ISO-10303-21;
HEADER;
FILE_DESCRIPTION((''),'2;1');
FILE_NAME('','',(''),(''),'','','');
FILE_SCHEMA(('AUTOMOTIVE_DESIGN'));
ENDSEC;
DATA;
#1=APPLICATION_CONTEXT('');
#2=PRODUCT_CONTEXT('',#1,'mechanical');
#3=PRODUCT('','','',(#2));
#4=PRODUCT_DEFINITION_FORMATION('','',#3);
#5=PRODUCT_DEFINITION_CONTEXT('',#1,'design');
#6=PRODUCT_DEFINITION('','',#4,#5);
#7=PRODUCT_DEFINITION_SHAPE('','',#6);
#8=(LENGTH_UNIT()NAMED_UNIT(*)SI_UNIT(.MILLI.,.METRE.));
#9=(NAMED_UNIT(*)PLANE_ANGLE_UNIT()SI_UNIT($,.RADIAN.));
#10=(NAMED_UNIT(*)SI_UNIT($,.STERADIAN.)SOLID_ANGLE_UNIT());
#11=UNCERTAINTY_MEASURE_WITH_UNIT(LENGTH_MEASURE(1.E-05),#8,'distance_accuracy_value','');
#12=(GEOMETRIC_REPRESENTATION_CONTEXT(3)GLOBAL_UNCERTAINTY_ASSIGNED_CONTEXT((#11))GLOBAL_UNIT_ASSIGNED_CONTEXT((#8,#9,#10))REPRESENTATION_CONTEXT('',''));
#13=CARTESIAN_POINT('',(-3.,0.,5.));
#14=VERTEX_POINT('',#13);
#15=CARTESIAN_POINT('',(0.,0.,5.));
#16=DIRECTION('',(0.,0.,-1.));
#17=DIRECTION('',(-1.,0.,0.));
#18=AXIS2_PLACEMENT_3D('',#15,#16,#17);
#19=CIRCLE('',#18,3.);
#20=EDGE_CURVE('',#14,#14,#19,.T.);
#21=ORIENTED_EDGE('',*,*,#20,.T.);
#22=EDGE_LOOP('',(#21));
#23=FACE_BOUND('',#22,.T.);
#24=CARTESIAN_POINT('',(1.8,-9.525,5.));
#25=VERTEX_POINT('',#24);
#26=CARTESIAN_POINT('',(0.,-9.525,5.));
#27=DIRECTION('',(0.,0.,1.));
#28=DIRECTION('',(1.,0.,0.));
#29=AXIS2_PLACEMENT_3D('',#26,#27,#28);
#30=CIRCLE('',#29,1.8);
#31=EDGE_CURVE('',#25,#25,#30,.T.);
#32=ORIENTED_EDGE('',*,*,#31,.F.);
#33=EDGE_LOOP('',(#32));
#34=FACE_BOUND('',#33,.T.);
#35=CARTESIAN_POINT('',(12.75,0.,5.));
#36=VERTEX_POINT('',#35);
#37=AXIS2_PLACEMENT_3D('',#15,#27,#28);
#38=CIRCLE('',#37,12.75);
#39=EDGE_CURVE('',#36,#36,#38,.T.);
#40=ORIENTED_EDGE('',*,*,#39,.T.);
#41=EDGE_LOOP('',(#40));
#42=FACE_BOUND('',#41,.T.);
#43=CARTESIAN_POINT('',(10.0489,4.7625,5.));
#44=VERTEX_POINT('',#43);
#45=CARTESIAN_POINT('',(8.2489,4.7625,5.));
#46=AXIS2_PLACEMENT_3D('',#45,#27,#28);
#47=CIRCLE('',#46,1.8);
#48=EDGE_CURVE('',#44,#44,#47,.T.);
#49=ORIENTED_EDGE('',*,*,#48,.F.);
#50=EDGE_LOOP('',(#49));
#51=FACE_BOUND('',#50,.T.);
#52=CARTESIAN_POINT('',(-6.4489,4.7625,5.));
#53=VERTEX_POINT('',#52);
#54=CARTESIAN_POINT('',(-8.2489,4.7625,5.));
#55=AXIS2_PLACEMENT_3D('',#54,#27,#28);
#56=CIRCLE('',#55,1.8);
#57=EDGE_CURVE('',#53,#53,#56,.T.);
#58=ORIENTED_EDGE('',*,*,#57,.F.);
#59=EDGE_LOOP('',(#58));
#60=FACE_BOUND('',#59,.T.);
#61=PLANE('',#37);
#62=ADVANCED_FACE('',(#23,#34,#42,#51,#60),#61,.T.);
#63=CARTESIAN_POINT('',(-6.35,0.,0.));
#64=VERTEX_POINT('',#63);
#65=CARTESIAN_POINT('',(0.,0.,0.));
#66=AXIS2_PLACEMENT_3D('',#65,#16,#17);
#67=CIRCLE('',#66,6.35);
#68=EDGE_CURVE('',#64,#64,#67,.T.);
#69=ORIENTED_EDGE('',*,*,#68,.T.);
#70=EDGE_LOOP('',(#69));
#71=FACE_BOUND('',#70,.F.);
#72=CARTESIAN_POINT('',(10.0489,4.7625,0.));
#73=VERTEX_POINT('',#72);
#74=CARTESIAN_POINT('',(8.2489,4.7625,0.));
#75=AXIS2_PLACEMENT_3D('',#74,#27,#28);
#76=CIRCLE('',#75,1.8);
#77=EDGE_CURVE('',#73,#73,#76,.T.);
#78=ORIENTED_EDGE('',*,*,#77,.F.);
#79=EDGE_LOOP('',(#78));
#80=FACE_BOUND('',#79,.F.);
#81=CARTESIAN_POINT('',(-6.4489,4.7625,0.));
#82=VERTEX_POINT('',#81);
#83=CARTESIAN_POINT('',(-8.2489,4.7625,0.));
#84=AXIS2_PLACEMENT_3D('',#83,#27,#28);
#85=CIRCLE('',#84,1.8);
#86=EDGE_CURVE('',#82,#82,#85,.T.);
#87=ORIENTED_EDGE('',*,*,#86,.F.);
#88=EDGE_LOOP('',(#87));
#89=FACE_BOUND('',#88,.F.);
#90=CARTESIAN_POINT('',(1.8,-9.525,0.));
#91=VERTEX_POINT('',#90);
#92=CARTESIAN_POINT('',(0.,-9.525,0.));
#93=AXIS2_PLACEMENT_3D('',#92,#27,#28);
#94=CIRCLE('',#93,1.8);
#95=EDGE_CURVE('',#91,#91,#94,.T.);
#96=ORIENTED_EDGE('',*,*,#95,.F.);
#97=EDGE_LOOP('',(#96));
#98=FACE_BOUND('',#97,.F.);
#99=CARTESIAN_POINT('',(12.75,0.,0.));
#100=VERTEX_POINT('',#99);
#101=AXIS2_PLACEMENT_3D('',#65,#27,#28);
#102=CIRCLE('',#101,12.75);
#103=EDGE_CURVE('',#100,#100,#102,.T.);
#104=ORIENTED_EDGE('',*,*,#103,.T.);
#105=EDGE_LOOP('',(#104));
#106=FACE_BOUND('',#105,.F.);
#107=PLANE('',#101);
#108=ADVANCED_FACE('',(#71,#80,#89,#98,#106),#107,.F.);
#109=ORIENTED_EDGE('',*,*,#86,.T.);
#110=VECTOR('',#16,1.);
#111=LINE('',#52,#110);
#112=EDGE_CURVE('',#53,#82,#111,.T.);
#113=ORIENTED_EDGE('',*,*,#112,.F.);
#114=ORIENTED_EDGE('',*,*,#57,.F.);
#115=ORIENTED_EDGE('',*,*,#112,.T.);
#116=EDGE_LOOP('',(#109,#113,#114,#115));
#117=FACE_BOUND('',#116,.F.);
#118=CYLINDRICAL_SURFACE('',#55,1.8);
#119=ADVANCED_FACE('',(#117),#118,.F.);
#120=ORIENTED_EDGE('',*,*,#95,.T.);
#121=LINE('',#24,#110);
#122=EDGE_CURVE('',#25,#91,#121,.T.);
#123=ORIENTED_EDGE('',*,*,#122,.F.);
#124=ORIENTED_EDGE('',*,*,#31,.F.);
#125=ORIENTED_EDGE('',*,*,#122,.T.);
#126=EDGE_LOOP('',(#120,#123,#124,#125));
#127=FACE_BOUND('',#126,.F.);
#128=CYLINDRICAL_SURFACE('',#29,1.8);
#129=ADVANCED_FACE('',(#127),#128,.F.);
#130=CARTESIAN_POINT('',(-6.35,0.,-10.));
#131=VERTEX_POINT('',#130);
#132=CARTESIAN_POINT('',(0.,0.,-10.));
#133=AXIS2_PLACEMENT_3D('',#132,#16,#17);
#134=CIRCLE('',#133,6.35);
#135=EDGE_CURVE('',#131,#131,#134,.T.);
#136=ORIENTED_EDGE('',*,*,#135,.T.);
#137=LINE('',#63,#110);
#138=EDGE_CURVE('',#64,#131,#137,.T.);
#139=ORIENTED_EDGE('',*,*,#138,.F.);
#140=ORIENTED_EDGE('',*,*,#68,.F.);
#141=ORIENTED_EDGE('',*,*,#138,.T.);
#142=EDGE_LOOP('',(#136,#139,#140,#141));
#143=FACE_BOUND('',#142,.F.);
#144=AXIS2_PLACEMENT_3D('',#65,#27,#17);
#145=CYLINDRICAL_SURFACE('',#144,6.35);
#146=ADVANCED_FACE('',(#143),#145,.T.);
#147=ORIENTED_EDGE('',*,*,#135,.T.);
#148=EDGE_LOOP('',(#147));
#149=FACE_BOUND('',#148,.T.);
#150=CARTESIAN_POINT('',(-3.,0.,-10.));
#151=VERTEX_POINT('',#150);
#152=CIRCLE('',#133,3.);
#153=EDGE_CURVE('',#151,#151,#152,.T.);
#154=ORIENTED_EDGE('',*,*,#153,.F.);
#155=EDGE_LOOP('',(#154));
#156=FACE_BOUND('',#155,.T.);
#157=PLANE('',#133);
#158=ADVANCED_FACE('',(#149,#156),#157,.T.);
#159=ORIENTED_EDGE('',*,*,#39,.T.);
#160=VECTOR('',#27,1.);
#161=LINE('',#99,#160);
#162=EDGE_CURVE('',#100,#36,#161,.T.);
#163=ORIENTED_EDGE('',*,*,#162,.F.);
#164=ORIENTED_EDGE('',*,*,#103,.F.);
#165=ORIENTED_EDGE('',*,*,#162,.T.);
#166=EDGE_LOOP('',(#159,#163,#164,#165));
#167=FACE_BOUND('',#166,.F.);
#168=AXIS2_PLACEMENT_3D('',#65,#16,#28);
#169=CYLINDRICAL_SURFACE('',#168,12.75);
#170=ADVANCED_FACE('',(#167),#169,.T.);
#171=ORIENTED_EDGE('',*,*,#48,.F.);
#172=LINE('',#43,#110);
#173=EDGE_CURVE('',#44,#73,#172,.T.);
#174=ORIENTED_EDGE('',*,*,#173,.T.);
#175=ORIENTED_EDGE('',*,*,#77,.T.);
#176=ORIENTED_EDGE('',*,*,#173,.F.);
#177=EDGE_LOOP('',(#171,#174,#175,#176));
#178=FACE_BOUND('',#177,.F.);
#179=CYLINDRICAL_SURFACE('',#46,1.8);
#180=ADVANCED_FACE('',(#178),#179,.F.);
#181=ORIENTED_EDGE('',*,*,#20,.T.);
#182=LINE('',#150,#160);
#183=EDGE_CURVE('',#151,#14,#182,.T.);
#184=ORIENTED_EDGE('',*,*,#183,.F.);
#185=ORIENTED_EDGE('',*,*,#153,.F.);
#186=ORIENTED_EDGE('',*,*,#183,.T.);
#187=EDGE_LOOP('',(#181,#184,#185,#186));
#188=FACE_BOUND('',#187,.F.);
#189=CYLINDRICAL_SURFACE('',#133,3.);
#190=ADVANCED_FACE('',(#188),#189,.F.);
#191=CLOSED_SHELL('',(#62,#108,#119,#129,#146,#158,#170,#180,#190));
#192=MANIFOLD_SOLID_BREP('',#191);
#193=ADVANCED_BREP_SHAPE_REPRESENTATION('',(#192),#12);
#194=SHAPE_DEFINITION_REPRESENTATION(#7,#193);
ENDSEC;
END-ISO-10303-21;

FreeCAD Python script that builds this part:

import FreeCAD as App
import Part
import Sketcher

V = App.Vector
Q = App.Units.Quantity

doc = App.newDocument("Part")
body = doc.addObject("PartDesign::Body", "Body")

sketch1 = body.newObject("Sketcher::SketchObject", "Sketch")
sketch1.AttachmentSupport = (doc.getObject("XY_Plane"), [""])
sketch1.MapMode = "FlatFace"
sketch1.addGeometry(Part.Circle(V(0, 0, 0), V(0, 0, 1), 13), False)
sketch1.addConstraint(Sketcher.Constraint("Coincident", 0, 3, -1, 1))
sketch1.addConstraint(Sketcher.Constraint("Diameter", 0, Q("25.5 mm")))
pad1 = body.newObject("PartDesign::Pad", "Pad")
pad1.Profile = sketch1
pad1.Length = 5

sketch2 = body.newObject("Sketcher::SketchObject", "Sketch001")
sketch2.AttachmentSupport = (doc.getObject("XY_Plane"), [""])
sketch2.MapMode = "FlatFace"
sketch2.addGeometry(Part.Circle(V(0, 0, 0), V(0, 0, 1), 6), False)
sketch2.addConstraint(Sketcher.Constraint("Coincident", 0, 3, -1, 1))
sketch2.addConstraint(Sketcher.Constraint("Diameter", 0, Q("12.7 mm")))
pad2 = body.newObject("PartDesign::Pad", "Pad001")
pad2.Profile = sketch2
pad2.Length = 10
pad2.Reversed = True

sketch3 = body.newObject("Sketcher::SketchObject", "Sketch002")
sketch3.AttachmentSupport = (doc.getObject("XY_Plane"), [""])
sketch3.MapMode = "FlatFace"
sketch3.AttachmentOffset = App.Placement(V(0, 0, -10), App.Rotation())
sketch3.addGeometry(Part.Circle(V(0, 0, 0), V(0, 0, 1), 3), False)
sketch3.addConstraint(Sketcher.Constraint("Coincident", 0, 3, -1, 1))
sketch3.addConstraint(Sketcher.Constraint("Diameter", 0, Q("6 mm")))
pocket1 = body.newObject("PartDesign::Pocket", "Pocket")
pocket1.Profile = sketch3
pocket1.Type = "ThroughAll"
pocket1.Reversed = True

sketch4 = body.newObject("Sketcher::SketchObject", "Sketch003")
sketch4.AttachmentSupport = (doc.getObject("XY_Plane"), [""])
sketch4.MapMode = "FlatFace"
sketch4.AttachmentOffset = App.Placement(V(0, 0, 5), App.Rotation())
sketch4.addGeometry(Part.Circle(V(0, -9.5, 0), V(0, 0, 1), 1.8), False)
sketch4.addGeometry(Part.Circle(V(8.2, 4.8, 0), V(0, 0, 1), 1.8), False)
sketch4.addGeometry(Part.Circle(V(-8.2, 4.8, 0), V(0, 0, 1), 1.8), False)
sketch4.addConstraint(Sketcher.Constraint("Equal", 0, 1))
sketch4.addConstraint(Sketcher.Constraint("Equal", 1, 2))
sketch4.addConstraint(Sketcher.Constraint("Symmetric", 1, 3, 2, 3, -2))
sketch4.addConstraint(Sketcher.Constraint("PointOnObject", 0, 3, -2))
sketch4.addConstraint(Sketcher.Constraint("Diameter", 0, Q("3.6 mm")))
sketch4.addConstraint(Sketcher.Constraint("DistanceY", 0, 3, -1, 1, Q("9.525 mm")))
sketch4.addConstraint(Sketcher.Constraint("DistanceX", -1, 1, 1, 3, Q("8.249 mm")))
sketch4.addConstraint(Sketcher.Constraint("DistanceY", -1, 1, 1, 3, Q("4.7625 mm")))
pocket2 = body.newObject("PartDesign::Pocket", "Pocket001")
pocket2.Profile = sketch4
pocket2.Type = "ThroughAll"

doc.recompute()
